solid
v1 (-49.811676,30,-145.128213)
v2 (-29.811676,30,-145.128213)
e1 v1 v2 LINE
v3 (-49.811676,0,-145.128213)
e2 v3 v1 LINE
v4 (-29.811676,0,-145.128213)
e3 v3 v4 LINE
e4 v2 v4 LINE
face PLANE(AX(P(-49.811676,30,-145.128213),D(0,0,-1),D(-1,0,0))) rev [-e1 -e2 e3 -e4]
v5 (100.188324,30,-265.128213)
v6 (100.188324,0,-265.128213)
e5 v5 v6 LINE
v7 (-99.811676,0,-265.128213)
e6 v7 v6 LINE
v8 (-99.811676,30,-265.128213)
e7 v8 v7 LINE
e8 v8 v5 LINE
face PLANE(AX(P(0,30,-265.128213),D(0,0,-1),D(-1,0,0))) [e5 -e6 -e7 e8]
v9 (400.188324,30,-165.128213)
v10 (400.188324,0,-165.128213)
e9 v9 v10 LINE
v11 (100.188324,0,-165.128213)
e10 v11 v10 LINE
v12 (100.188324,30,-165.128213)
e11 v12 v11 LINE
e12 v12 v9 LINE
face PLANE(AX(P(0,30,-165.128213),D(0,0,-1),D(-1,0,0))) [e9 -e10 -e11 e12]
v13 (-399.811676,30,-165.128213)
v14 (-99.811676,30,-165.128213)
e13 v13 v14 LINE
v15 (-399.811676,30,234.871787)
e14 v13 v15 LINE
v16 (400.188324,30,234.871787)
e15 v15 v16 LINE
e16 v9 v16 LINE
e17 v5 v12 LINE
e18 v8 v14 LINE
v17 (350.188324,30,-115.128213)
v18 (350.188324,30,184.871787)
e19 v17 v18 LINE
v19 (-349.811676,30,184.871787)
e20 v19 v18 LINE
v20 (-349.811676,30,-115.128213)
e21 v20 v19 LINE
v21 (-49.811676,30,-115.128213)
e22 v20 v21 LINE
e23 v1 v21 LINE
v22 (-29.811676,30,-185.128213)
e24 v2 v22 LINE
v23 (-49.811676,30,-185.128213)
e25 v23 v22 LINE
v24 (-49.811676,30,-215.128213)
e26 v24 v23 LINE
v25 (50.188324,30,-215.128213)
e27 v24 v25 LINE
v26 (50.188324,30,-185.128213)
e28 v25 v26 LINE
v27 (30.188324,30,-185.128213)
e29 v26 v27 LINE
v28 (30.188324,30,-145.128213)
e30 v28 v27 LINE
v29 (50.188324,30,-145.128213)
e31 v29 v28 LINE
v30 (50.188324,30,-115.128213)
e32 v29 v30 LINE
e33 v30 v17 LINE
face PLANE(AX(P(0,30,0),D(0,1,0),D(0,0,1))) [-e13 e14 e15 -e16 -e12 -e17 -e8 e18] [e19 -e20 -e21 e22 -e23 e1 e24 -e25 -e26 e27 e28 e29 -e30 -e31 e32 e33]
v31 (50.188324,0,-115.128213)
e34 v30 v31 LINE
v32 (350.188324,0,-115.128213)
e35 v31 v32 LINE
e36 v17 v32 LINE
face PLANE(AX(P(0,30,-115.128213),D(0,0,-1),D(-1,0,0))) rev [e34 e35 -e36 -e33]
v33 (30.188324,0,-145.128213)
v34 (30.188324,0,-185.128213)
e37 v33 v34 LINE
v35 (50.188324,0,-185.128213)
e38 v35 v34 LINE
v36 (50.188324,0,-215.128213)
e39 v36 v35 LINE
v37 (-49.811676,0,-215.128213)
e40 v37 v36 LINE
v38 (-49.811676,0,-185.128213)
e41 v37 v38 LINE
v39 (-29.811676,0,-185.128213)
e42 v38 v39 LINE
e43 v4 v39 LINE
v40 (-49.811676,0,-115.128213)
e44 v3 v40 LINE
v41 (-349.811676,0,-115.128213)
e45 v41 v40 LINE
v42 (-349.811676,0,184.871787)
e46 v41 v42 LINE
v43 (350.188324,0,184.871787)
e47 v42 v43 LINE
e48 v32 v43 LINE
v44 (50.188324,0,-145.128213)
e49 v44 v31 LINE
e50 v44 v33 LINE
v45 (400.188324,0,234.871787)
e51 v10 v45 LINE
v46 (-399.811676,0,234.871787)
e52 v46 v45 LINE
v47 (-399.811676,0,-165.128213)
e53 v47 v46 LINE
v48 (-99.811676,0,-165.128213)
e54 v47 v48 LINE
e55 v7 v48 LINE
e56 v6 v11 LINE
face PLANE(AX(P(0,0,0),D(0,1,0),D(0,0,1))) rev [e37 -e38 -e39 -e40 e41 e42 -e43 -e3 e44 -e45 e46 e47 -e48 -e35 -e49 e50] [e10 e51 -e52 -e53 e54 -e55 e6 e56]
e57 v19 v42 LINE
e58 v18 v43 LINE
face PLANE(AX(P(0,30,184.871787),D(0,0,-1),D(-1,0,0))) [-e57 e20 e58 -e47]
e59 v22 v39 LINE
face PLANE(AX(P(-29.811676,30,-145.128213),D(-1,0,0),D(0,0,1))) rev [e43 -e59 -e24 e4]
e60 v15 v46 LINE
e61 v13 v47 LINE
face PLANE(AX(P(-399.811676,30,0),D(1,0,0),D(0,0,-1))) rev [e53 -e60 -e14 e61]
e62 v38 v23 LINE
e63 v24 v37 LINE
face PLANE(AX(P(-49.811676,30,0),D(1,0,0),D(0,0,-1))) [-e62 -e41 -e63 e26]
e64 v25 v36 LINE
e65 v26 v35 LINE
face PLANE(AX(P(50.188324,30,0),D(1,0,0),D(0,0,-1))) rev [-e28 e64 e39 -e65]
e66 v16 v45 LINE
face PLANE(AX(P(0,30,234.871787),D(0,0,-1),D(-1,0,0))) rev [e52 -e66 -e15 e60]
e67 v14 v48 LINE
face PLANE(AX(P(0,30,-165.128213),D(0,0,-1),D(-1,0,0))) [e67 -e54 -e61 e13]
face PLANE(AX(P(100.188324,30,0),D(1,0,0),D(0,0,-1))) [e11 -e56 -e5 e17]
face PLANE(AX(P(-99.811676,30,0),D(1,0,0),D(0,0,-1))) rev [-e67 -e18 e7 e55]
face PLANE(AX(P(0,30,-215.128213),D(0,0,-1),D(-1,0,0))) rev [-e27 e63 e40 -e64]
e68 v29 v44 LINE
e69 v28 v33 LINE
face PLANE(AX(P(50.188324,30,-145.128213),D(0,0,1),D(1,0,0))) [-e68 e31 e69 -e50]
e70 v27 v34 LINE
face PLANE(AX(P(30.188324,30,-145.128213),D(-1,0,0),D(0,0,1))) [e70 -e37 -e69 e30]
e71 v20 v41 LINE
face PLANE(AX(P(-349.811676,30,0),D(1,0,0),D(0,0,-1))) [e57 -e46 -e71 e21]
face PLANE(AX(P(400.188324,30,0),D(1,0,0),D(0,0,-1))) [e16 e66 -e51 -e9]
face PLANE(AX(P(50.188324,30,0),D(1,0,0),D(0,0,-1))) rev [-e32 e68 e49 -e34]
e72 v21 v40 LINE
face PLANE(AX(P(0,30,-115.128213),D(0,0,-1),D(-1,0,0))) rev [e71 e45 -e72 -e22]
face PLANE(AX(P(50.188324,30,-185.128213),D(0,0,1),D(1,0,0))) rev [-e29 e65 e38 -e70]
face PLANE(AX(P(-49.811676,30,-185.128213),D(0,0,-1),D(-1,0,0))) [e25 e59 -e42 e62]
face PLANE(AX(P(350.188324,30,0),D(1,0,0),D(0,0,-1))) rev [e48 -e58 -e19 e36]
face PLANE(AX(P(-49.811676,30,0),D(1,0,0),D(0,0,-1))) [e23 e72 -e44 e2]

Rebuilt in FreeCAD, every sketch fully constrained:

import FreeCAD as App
import Part
import Sketcher
from FreeCAD import Vector
Q = App.Units.Quantity

doc = App.newDocument("Part")
body = doc.addObject("PartDesign::Body", "Body")

# Sketch on XZ plane
sketch1 = body.newObject("Sketcher::SketchObject", "Sketch")
sketch1.AttachmentSupport = (doc.getObject("XZ_Plane"), [""])
sketch1.MapMode = "FlatFace"
sketch1.addGeometry([
    Part.LineSegment(Vector(-400, -165, 0), Vector(-400, 235, 0)),  # 0
    Part.LineSegment(Vector(-400, 235, 0), Vector(400, 235, 0)),  # 1
    Part.LineSegment(Vector(400, 235, 0), Vector(400, -165, 0)),  # 2
    Part.LineSegment(Vector(400, -165, 0), Vector(100, -165, 0)),  # 3
    Part.LineSegment(Vector(100, -165, 0), Vector(100, -265, 0)),  # 4
    Part.LineSegment(Vector(100, -265, 0), Vector(-100, -265, 0)),  # 5
    Part.LineSegment(Vector(-100, -265, 0), Vector(-100, -165, 0)),  # 6
    Part.LineSegment(Vector(-100, -165, 0), Vector(-400, -165, 0)),  # 7
    Part.LineSegment(Vector(50, -115, 0), Vector(350, -115, 0)),  # 8
    Part.LineSegment(Vector(350, -115, 0), Vector(350, 185, 0)),  # 9
    Part.LineSegment(Vector(350, 185, 0), Vector(-350, 185, 0)),  # 10
    Part.LineSegment(Vector(-350, 185, 0), Vector(-350, -115, 0)),  # 11
    Part.LineSegment(Vector(-350, -115, 0), Vector(-50, -115, 0)),  # 12
    Part.LineSegment(Vector(-50, -115, 0), Vector(-50, -145, 0)),  # 13
    Part.LineSegment(Vector(-50, -145, 0), Vector(-30, -145, 0)),  # 14
    Part.LineSegment(Vector(-30, -145, 0), Vector(-30, -185, 0)),  # 15
    Part.LineSegment(Vector(-30, -185, 0), Vector(-50, -185, 0)),  # 16
    Part.LineSegment(Vector(-50, -185, 0), Vector(-50, -215, 0)),  # 17
    Part.LineSegment(Vector(-50, -215, 0), Vector(50, -215, 0)),  # 18
    Part.LineSegment(Vector(50, -215, 0), Vector(50, -185, 0)),  # 19
    Part.LineSegment(Vector(50, -185, 0), Vector(30, -185, 0)),  # 20
    Part.LineSegment(Vector(30, -185, 0), Vector(30, -145, 0)),  # 21
    Part.LineSegment(Vector(30, -145, 0), Vector(50, -145, 0)),  # 22
    Part.LineSegment(Vector(50, -145, 0), Vector(50, -115, 0)),  # 23
], False)
sketch1.addConstraint([
    Sketcher.Constraint("Coincident", 0, 2, 1, 1),
    Sketcher.Constraint("Coincident", 1, 2, 2, 1),
    Sketcher.Constraint("Coincident", 2, 2, 3, 1),
    Sketcher.Constraint("Coincident", 3, 2, 4, 1),
    Sketcher.Constraint("Coincident", 4, 2, 5, 1),
    Sketcher.Constraint("Coincident", 5, 2, 6, 1),
    Sketcher.Constraint("Coincident", 6, 2, 7, 1),
    Sketcher.Constraint("Coincident", 7, 2, 0, 1),
    Sketcher.Constraint("Coincident", 8, 2, 9, 1),
    Sketcher.Constraint("Coincident", 9, 2, 10, 1),
    Sketcher.Constraint("Coincident", 10, 2, 11, 1),
    Sketcher.Constraint("Coincident", 11, 2, 12, 1),
    Sketcher.Constraint("Coincident", 12, 2, 13, 1),
    Sketcher.Constraint("Coincident", 13, 2, 14, 1),
    Sketcher.Constraint("Coincident", 14, 2, 15, 1),
    Sketcher.Constraint("Coincident", 15, 2, 16, 1),
    Sketcher.Constraint("Coincident", 16, 2, 17, 1),
    Sketcher.Constraint("Coincident", 17, 2, 18, 1),
    Sketcher.Constraint("Coincident", 18, 2, 19, 1),
    Sketcher.Constraint("Coincident", 19, 2, 20, 1),
    Sketcher.Constraint("Coincident", 20, 2, 21, 1),
    Sketcher.Constraint("Coincident", 21, 2, 22, 1),
    Sketcher.Constraint("Coincident", 22, 2, 23, 1),
    Sketcher.Constraint("Coincident", 23, 2, 8, 1),
    Sketcher.Constraint("Vertical", 0),
    Sketcher.Constraint("Horizontal", 1),
    Sketcher.Constraint("Vertical", 2),
    Sketcher.Constraint("Horizontal", 3),
    Sketcher.Constraint("Vertical", 4),
    Sketcher.Constraint("Horizontal", 5),
    Sketcher.Constraint("Vertical", 6),
    Sketcher.Constraint("Horizontal", 7),
    Sketcher.Constraint("Horizontal", 8),
    Sketcher.Constraint("Vertical", 9),
    Sketcher.Constraint("Horizontal", 10),
    Sketcher.Constraint("Vertical", 11),
    Sketcher.Constraint("Horizontal", 12),
    Sketcher.Constraint("Vertical", 13),
    Sketcher.Constraint("Horizontal", 14),
    Sketcher.Constraint("Vertical", 15),
    Sketcher.Constraint("Horizontal", 16),
    Sketcher.Constraint("Vertical", 17),
    Sketcher.Constraint("Horizontal", 18),
    Sketcher.Constraint("Vertical", 19),
    Sketcher.Constraint("Horizontal", 20),
    Sketcher.Constraint("Vertical", 21),
    Sketcher.Constraint("Horizontal", 22),
    Sketcher.Constraint("Vertical", 23),
    Sketcher.Constraint("Horizontal", 3, 2, 6, 2),
    Sketcher.Constraint("Horizontal", 8, 2, 11, 2),
    Sketcher.Constraint("Horizontal", 16, 2, 19, 2),
    Sketcher.Constraint("Horizontal", 14, 2, 21, 2),
    Sketcher.Constraint("Vertical", 13, 2, 16, 2),
    Sketcher.Constraint("Vertical", 19, 2, 22, 2),
    Sketcher.Constraint("Equal", 3, 7),
    Sketcher.Constraint("Equal", 7, 8),
    Sketcher.Constraint("Equal", 8, 12),
    Sketcher.Constraint("Equal", 16, 20),
    Sketcher.Constraint("Equal", 18, 4),
    Sketcher.Constraint("Equal", 12, 9),
    Sketcher.Constraint("Equal", 13, 17),
    Sketcher.Constraint("DistanceX", 1, 1, 1, 2, Q("800 mm")),
    Sketcher.Constraint("DistanceX", 3, 2, 3, 1, Q("300 mm")),
    Sketcher.Constraint("DistanceX", 10, 2, 10, 1, Q("700 mm")),
    Sketcher.Constraint("DistanceX", 14, 1, 14, 2, Q("20 mm")),
    Sketcher.Constraint("DistanceY", 0, 1, 0, 2, Q("400 mm")),
    Sketcher.Constraint("DistanceY", 13, 2, 13, 1, Q("30 mm")),
    Sketcher.Constraint("DistanceY", 15, 2, 15, 1, Q("40 mm")),
    Sketcher.Constraint("DistanceX", 8, 2, 2, 2, Q("50 mm")),
    Sketcher.Constraint("DistanceY", 2, 2, 8, 2, Q("50 mm")),
    Sketcher.Constraint("DistanceX", 0, 2, -1, 1, Q("399.811676 mm")),
    Sketcher.Constraint("DistanceY", -1, 1, 0, 2, Q("234.871787 mm")),
])
pad1 = body.newObject("PartDesign::Pad", "Pad")
pad1.Profile = sketch1
pad1.Length = 30
pad1.Reversed = True

doc.recompute()
